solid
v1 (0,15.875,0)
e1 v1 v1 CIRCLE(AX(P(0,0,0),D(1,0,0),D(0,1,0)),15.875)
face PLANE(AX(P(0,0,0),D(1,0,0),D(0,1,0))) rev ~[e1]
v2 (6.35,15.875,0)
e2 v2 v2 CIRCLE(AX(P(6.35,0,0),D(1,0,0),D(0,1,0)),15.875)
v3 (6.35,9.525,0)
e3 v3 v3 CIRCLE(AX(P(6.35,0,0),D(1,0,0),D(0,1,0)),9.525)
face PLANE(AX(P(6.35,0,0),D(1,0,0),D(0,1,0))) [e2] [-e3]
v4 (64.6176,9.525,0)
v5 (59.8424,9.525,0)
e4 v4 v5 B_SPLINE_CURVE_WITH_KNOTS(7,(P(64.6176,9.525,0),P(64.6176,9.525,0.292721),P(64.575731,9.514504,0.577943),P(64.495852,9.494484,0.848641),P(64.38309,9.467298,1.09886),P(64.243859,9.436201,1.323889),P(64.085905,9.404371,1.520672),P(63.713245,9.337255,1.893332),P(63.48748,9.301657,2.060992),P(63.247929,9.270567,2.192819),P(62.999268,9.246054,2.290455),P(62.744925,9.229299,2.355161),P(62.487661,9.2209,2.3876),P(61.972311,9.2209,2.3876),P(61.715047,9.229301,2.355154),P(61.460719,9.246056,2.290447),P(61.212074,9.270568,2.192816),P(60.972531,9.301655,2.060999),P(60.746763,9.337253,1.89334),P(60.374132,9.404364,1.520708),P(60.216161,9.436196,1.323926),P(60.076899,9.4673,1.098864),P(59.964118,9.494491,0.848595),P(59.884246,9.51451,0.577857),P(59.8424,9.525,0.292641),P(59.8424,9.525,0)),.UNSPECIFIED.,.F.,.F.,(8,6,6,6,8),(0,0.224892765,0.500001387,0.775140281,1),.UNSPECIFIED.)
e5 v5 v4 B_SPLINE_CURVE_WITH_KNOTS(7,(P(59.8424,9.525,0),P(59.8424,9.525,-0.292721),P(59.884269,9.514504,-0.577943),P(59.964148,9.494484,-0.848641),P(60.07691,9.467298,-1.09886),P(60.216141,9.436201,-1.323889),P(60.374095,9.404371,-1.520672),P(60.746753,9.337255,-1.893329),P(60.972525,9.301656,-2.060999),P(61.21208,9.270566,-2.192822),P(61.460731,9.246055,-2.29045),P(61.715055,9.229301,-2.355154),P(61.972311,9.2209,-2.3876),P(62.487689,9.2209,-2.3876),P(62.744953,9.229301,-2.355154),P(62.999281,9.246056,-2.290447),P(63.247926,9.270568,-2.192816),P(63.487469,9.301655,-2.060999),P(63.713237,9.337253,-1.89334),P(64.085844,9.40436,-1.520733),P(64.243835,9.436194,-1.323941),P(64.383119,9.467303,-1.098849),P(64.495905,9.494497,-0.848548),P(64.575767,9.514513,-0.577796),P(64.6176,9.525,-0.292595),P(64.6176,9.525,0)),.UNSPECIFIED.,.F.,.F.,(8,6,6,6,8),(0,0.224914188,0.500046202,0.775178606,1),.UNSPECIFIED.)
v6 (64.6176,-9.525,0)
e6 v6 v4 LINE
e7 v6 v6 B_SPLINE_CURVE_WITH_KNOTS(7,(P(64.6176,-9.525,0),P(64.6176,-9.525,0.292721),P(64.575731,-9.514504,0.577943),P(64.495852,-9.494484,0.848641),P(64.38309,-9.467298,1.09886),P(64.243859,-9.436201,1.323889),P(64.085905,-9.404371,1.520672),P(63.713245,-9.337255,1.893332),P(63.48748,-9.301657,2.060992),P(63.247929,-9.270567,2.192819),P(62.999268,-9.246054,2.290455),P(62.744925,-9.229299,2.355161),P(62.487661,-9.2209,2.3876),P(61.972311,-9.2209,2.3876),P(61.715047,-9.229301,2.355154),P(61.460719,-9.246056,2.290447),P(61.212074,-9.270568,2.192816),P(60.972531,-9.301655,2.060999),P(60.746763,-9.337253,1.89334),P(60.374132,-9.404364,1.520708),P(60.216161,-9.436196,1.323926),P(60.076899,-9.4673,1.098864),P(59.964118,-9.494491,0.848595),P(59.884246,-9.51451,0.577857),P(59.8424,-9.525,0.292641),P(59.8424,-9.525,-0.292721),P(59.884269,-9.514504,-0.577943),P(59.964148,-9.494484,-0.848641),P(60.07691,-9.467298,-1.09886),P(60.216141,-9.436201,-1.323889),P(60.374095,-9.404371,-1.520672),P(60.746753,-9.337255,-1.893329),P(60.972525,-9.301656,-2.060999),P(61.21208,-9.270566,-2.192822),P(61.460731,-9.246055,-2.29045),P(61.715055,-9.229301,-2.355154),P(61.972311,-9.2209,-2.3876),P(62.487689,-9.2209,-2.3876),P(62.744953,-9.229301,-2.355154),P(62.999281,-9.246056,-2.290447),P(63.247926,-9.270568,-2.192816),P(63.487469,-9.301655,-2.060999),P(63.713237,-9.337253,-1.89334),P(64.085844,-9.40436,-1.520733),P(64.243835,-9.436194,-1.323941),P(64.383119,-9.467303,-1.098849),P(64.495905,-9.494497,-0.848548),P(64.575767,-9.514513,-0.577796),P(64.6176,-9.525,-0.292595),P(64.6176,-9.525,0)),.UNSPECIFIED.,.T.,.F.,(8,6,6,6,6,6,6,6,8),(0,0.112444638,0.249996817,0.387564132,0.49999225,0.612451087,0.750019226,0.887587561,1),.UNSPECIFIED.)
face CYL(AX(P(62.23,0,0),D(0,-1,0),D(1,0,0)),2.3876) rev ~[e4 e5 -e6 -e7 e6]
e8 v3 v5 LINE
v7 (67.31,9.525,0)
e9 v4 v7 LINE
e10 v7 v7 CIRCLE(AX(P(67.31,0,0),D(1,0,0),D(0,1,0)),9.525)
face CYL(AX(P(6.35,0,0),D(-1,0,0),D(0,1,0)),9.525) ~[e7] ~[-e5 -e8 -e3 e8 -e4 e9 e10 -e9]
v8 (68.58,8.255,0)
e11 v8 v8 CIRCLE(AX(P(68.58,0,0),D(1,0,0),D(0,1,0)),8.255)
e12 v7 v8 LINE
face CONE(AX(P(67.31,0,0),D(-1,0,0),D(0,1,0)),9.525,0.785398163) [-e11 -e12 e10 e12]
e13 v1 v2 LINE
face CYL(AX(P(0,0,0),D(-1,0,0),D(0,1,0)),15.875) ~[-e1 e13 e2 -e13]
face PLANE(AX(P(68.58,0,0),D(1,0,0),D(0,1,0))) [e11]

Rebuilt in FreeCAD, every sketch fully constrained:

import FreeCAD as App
import Part
import Sketcher

V = App.Vector
Q = App.Units.Quantity


def edges_at(feature, points):
    """Names of the edges that pass closest to the given points."""
    edges = feature.Shape.Edges
    near = lambda p: min(range(len(edges)), key=lambda i: edges[i].distToShape(Part.Vertex(*p))[0])
    return sorted({f"Edge{near(p) + 1}" for p in points})

doc = App.newDocument("Part")
body = doc.addObject("PartDesign::Body", "Body")

sketch1 = body.newObject("Sketcher::SketchObject", "Sketch")
sketch1.AttachmentSupport = (doc.getObject("YZ_Plane"), [""])
sketch1.MapMode = "FlatFace"
sketch1.addGeometry(Part.Circle(V(0, 0, 0), V(0, 0, 1), 16), False)
sketch1.addConstraint([
    Sketcher.Constraint("Coincident", 0, 3, -1, 1),
    Sketcher.Constraint("Diameter", 0, Q("1.25 in")),
])
pad1 = body.newObject("PartDesign::Pad", "Pad")
pad1.Profile = sketch1
pad1.Length = Q("0.25 in")

sketch2 = body.newObject("Sketcher::SketchObject", "Sketch001")
sketch2.AttachmentSupport = (doc.getObject("YZ_Plane"), [""])
sketch2.MapMode = "FlatFace"
sketch2.AttachmentOffset = App.Placement(V(0, 0, 0.25 * 25.4), App.Rotation())
sketch2.addGeometry(Part.Circle(V(0, 0, 0), V(0, 0, 1), 10), False)
sketch2.addConstraint([
    Sketcher.Constraint("Coincident", 0, 3, -1, 1),
    Sketcher.Constraint("Diameter", 0, Q("0.75 in")),
])
pad2 = body.newObject("PartDesign::Pad", "Pad001")
pad2.Profile = sketch2
pad2.Length = Q("2.45 in")
doc.recompute()

chamfer = body.newObject("PartDesign::Chamfer", "Chamfer")
chamfer.Base = (pad2, edges_at(pad2, [(68.58, -9.525, 0)]))
chamfer.ChamferType = "Two distances"
chamfer.Size = Q("0.05 in")
chamfer.Size2 = Q("0.05 in")

sketch3 = body.newObject("Sketcher::SketchObject", "Sketch002")
sketch3.AttachmentSupport = (doc.getObject("XZ_Plane"), [""])
sketch3.MapMode = "FlatFace"
sketch3.addGeometry(Part.Circle(V(62.2, 0, 0), V(0, 0, 1), 2.4), False)
sketch3.addConstraint([
    Sketcher.Constraint("PointOnObject", 0, 3, -1),
    Sketcher.Constraint("Diameter", 0, Q("0.188 in")),
    Sketcher.Constraint("DistanceX", -1, 1, 0, 3, Q("2.45 in")),
])
pocket1 = body.newObject("PartDesign::Pocket", "Pocket")
pocket1.Profile = sketch3
pocket1.Type = "ThroughAll"
pocket1.Midplane = True

doc.recompute()
